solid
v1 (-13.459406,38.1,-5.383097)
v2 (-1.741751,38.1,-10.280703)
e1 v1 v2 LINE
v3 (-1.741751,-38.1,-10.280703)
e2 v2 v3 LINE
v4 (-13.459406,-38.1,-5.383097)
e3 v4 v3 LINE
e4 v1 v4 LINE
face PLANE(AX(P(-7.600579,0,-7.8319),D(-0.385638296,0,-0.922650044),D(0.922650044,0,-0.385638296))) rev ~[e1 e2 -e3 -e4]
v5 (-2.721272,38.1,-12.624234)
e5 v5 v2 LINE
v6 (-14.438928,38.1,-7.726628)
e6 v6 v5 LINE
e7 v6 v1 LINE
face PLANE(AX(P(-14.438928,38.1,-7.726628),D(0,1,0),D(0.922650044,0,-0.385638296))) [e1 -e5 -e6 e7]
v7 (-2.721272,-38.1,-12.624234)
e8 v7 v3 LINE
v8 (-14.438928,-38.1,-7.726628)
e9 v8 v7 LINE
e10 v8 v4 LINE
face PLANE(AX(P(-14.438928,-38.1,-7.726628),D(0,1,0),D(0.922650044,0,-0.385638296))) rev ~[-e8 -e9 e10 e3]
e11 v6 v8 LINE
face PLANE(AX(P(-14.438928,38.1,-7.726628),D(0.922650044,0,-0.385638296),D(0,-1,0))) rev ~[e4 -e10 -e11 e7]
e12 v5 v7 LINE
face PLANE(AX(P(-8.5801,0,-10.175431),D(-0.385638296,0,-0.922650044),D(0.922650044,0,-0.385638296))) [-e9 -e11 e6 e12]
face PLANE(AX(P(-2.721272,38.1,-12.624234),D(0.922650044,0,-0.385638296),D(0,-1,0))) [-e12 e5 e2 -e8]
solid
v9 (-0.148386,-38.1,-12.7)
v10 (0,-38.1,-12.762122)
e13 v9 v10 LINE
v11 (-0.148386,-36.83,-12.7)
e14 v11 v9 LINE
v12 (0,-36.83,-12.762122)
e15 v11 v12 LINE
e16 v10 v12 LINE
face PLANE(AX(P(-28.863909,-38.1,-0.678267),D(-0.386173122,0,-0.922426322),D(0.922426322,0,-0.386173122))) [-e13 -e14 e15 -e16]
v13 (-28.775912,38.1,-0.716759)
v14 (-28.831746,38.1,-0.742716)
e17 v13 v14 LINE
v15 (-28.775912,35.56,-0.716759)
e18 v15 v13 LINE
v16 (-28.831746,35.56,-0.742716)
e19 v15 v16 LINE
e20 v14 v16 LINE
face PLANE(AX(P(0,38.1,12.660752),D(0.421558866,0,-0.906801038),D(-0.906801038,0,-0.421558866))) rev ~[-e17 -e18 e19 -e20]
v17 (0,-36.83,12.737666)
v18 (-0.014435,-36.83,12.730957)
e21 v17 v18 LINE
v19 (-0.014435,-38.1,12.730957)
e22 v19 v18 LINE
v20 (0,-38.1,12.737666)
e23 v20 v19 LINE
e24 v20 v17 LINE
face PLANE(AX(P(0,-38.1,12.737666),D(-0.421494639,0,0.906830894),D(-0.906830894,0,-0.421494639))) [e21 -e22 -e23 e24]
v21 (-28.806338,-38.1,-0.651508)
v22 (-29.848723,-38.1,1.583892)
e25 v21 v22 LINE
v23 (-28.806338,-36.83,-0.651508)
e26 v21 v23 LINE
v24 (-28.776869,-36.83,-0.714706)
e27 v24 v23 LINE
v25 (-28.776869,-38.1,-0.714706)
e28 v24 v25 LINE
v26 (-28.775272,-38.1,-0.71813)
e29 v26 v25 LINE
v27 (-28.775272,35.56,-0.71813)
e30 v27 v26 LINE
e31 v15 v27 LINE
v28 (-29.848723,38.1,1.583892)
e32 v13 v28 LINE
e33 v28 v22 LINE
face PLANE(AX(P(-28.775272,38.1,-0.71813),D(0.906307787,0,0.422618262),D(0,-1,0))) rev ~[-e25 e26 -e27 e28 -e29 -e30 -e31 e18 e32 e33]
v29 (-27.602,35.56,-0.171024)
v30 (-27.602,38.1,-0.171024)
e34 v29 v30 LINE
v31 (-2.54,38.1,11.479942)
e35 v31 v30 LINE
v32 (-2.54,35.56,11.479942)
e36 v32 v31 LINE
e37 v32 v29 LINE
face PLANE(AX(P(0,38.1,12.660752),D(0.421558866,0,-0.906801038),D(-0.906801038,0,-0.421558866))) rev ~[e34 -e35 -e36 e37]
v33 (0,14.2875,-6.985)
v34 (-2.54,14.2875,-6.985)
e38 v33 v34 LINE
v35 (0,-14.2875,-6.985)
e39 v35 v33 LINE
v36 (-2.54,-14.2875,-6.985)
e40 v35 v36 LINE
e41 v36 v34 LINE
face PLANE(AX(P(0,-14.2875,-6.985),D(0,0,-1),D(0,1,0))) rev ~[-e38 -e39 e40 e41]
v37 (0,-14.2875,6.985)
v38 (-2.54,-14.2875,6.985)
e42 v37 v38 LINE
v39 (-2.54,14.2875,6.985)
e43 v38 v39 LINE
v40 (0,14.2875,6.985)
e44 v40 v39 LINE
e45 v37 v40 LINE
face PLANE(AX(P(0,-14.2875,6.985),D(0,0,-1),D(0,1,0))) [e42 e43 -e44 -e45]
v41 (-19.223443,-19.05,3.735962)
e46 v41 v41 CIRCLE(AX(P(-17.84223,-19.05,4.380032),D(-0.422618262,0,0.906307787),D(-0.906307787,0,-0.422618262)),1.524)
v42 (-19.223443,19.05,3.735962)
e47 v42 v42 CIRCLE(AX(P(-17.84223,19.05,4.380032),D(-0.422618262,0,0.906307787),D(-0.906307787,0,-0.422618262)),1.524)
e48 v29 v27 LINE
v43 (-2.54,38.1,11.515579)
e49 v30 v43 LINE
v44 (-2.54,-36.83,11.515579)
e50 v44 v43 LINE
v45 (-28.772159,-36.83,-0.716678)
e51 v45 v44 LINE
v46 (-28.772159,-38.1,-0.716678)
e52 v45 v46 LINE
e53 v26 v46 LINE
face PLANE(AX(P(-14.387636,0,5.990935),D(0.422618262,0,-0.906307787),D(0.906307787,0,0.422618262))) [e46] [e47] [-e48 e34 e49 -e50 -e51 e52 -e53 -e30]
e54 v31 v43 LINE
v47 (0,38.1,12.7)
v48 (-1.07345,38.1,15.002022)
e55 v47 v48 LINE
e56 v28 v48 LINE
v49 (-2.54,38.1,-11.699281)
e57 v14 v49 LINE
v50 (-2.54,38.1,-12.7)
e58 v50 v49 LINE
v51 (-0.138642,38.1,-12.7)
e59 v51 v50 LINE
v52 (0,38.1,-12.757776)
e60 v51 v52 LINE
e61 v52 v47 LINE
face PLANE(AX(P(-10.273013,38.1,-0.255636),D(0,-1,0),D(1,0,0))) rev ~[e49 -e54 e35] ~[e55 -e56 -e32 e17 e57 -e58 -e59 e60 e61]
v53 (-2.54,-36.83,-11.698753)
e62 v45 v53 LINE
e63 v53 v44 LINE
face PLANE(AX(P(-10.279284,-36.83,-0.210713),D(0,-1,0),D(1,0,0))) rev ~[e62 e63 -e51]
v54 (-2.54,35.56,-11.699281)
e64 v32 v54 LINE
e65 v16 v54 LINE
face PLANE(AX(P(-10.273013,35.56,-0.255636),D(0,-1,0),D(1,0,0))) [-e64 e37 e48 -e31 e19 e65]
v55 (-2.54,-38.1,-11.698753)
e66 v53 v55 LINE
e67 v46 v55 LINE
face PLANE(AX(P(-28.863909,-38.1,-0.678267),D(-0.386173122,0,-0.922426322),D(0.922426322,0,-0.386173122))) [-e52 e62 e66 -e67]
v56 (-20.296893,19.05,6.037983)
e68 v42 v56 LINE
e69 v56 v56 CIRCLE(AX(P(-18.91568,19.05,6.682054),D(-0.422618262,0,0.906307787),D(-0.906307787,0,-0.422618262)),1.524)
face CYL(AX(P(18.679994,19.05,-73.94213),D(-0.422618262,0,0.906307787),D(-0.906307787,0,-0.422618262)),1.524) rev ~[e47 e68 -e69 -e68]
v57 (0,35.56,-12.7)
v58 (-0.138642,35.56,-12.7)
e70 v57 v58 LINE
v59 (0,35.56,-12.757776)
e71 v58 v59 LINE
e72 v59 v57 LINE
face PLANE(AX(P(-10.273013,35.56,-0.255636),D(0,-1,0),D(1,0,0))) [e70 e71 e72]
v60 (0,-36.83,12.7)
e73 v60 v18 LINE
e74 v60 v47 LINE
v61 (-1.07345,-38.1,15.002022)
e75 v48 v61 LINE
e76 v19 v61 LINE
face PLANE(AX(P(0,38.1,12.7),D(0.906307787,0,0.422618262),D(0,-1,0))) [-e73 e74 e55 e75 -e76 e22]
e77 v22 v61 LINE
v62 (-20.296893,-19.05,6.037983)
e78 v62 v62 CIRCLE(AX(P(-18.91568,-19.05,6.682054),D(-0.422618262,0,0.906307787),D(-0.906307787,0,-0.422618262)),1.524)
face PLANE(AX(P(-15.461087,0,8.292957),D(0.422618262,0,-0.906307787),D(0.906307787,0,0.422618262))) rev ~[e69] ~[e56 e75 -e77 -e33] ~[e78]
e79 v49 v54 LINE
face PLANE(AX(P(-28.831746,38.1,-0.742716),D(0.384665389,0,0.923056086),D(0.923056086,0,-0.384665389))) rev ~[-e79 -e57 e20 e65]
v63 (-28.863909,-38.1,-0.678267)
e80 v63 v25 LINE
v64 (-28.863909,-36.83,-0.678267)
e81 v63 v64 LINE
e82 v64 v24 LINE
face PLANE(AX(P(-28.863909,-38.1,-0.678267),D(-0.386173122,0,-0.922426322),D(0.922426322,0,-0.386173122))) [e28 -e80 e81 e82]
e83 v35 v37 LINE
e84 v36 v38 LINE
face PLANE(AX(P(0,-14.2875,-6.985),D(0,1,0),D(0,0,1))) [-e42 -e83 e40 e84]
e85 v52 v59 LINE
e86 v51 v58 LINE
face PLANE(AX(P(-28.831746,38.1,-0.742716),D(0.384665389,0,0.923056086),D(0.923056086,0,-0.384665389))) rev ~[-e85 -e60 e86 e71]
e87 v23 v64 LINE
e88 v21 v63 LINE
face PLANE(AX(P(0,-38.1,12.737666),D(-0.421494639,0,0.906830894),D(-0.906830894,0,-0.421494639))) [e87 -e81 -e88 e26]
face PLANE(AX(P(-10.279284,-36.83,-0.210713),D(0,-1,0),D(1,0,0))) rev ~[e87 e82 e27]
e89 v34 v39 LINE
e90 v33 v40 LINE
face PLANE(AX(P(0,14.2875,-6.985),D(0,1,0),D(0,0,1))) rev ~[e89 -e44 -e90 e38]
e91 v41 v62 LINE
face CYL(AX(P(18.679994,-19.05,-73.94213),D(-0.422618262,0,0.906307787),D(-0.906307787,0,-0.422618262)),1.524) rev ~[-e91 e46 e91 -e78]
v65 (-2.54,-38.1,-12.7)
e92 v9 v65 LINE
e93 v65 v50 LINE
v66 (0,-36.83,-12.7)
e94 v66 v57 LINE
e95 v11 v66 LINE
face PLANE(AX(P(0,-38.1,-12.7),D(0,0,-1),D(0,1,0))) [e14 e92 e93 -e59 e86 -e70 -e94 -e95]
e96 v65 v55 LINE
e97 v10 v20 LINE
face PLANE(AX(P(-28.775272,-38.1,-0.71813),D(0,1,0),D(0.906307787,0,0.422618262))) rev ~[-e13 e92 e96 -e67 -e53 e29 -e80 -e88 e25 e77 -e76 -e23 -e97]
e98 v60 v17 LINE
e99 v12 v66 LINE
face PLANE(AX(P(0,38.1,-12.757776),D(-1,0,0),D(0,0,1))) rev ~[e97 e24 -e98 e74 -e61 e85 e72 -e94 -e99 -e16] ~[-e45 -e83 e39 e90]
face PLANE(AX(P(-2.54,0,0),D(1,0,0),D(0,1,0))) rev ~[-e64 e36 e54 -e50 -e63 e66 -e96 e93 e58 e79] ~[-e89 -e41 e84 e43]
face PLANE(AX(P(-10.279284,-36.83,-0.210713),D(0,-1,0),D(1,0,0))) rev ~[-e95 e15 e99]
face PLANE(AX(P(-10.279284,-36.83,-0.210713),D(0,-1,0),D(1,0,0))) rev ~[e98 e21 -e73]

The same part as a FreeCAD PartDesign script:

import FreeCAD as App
import Part
import Sketcher
from FreeCAD import Vector
Q = App.Units.Quantity


def add_polygon(sketch, points):
    """Adds a closed chain of lines whose ends are joined by coincident constraints."""
    first, n = sketch.GeometryCount, len(points)
    for a, b in zip(points, points[1:] + points[:1]):
        sketch.addGeometry(Part.LineSegment(App.Vector(*a, 0), App.Vector(*b, 0)), False)
    for i in range(n):
        sketch.addConstraint(Sketcher.Constraint("Coincident", first + i, 2, first + (i + 1) % n, 1))

doc = App.newDocument("Part")
params = doc.addObject("Spreadsheet::Sheet", "Params")
for row, (alias, value) in enumerate([
    ("pad1_length", "0.05 in"),
    ("pad2_length", "0.05 in"),
    ("sketch3_width", "3 in"),
    ("sketch3_height", "1 in"),
    ("sketch3_height2", "0.55 in"),
    ("sketch3_width2", "1.125 in"),
    ("pad3_length", "0.1 in"),
    ("sketch4_height", "3 in"),
    ("sketch4_width", "1.25 in"),
    ("pad4_length", "0.1 in"),
    ("pad5_length", "0.1 in"),
    ("sketch6_diameter", "0.12 in"),
    ("hole_diameter", "0.12 in"),
    ("sketch7_height", "3 in"),
    ("sketch7_width", "0.5 in"),
    ("pad6_length", "0.1 in"),
], start=1):
    params.set(f"A{row}", alias)
    params.set(f"B{row}", "=" + value)
    params.setAlias(f"B{row}", alias)

body = doc.addObject("PartDesign::Body", "Body")

sketch1 = body.newObject("Sketcher::SketchObject", "Sketch")
sketch1.AttachmentSupport = (doc.getObject("XZ_Plane"), [""])
sketch1.MapMode = "FlatFace"
sketch1.AttachmentOffset = App.Placement(Vector(0, 0, 1.5 * 25.4), App.Rotation())
add_polygon(sketch1, [(0, -13), (0, 13), (-29, -1)])
sketch1.addConstraint(Sketcher.Constraint("Vertical", 0))
sketch1.addConstraint(Sketcher.Constraint("PointOnObject", 0, 2, -2))
sketch1.addConstraint(Sketcher.Constraint("DistanceY", 0, 1, 0, 2, 25.499788))
sketch1.addConstraint(Sketcher.Constraint("Distance", 1, 31.829428))
sketch1.addConstraint(Sketcher.Constraint("Distance", 2, 31.291289))
sketch1.addConstraint(Sketcher.Constraint("DistanceY", 2, 2, -1, 1, 12.762122))
pad1 = body.newObject("PartDesign::Pad", "Pad")
pad1.Profile = sketch1
pad1.setExpression("Length", "Params.pad1_length")
pad1.Reversed = True

sketch2 = body.newObject("Sketcher::SketchObject", "Sketch001")
sketch2.AttachmentSupport = (doc.getObject("XZ_Plane"), [""])
sketch2.MapMode = "FlatFace"
sketch2.AttachmentOffset = App.Placement(Vector(0, 0, 1.5 * 25.4), App.Rotation())
add_polygon(sketch2, [(0, -13), (0, 13), (-29, -1)])
sketch2.addConstraint(Sketcher.Constraint("Vertical", 0))
sketch2.addConstraint(Sketcher.Constraint("PointOnObject", 0, 2, -2))
sketch2.addConstraint(Sketcher.Constraint("DistanceY", 0, 1, 0, 2, 25.499788))
sketch2.addConstraint(Sketcher.Constraint("Distance", 1, 31.829428))
sketch2.addConstraint(Sketcher.Constraint("Distance", 2, 31.291289))
sketch2.addConstraint(Sketcher.Constraint("DistanceY", 2, 2, -1, 1, 12.762122))
pad2 = body.newObject("PartDesign::Pad", "Pad001")
pad2.Profile = sketch2
pad2.setExpression("Length", "Params.pad2_length")
pad2.Reversed = True

sketch3 = body.newObject("Sketcher::SketchObject", "Sketch002")
sketch3.AttachmentSupport = (doc.getObject("YZ_Plane"), [""])
sketch3.MapMode = "FlatFace"
add_polygon(sketch3, [(-38, 13), (-38, -13), (38, -13), (38, 13)])
add_polygon(sketch3, [(14, -7), (-14, -7), (-14, 7), (14, 7)])
sketch3.addConstraint(Sketcher.Constraint("Vertical", 0))
sketch3.addConstraint(Sketcher.Constraint("Horizontal", 1))
sketch3.addConstraint(Sketcher.Constraint("Vertical", 2))
sketch3.addConstraint(Sketcher.Constraint("Horizontal", 3))
sketch3.addConstraint(Sketcher.Constraint("Horizontal", 4))
sketch3.addConstraint(Sketcher.Constraint("Vertical", 5))
sketch3.addConstraint(Sketcher.Constraint("Horizontal", 6))
sketch3.addConstraint(Sketcher.Constraint("Vertical", 7))
sketch3.addConstraint(Sketcher.Constraint("Symmetric", 0, 2, 2, 2, -1, 1))
sketch3.addConstraint(Sketcher.Constraint("Symmetric", 4, 2, 6, 2, -1, 1))
sketch3.addConstraint(Sketcher.Constraint("DistanceX", 1, 1, 1, 2, Q("3 in")))
sketch3.addConstraint(Sketcher.Constraint("DistanceY", 0, 2, 0, 1, Q("1 in")))
sketch3.addConstraint(Sketcher.Constraint("DistanceY", 5, 1, 5, 2, Q("0.55 in")))
sketch3.addConstraint(Sketcher.Constraint("DistanceX", 4, 2, 4, 1, Q("1.125 in")))
sketch3.setExpression("Constraints[18]", "Params.sketch3_width")
sketch3.setExpression("Constraints[19]", "Params.sketch3_height")
sketch3.setExpression("Constraints[20]", "Params.sketch3_height2")
sketch3.setExpression("Constraints[21]", "Params.sketch3_width2")
pad3 = body.newObject("PartDesign::Pad", "Pad002")
pad3.Profile = sketch3
pad3.setExpression("Length", "Params.pad3_length")
pad3.Reversed = True

sketch4 = body.newObject("Sketcher::SketchObject", "Sketch003")
sketch4.Placement = App.Placement(Vector(-4.864382, 0, 10.431701), App.Rotation(Vector(0.906307787, 0, 0.422618262), Vector(0, -1, 0), Vector(0.422618262, 0, -0.906307787), "ZXY"))
add_polygon(sketch4, [(-26, 38), (-26, -38), (5, -38), (5, 38)])
sketch4.addConstraint(Sketcher.Constraint("Vertical", 0))
sketch4.addConstraint(Sketcher.Constraint("Horizontal", 1))
sketch4.addConstraint(Sketcher.Constraint("Vertical", 2))
sketch4.addConstraint(Sketcher.Constraint("Horizontal", 3))
sketch4.addConstraint(Sketcher.Constraint("DistanceY", 0, 2, 0, 1, Q("3 in")))
sketch4.addConstraint(Sketcher.Constraint("DistanceX", 1, 1, 1, 2, Q("1.25 in")))
sketch4.addConstraint(Sketcher.Constraint("DistanceY", 0, 2, -1, 1, Q("1.5 in")))
sketch4.addConstraint(Sketcher.Constraint("DistanceX", 0, 2, -1, 1, 26.382748))
sketch4.setExpression("Constraints[8]", "Params.sketch4_height")
sketch4.setExpression("Constraints[9]", "Params.sketch4_width")
pad4 = body.newObject("PartDesign::Pad", "Pad003")
pad4.Profile = sketch4
pad4.setExpression("Length", "Params.pad4_length")
pad4.Reversed = True

sketch5 = body.newObject("Sketcher::SketchObject", "Sketch004")
sketch5.AttachmentSupport = (doc.getObject("XZ_Plane"), [""])
sketch5.MapMode = "FlatFace"
sketch5.AttachmentOffset = App.Placement(Vector(0, 0, -1.5 * 25.4), App.Rotation())
add_polygon(sketch5, [(0, -13), (0, 13), (-29, -1)])
sketch5.addConstraint(Sketcher.Constraint("Vertical", 0))
sketch5.addConstraint(Sketcher.Constraint("PointOnObject", 0, 2, -2))
sketch5.addConstraint(Sketcher.Constraint("DistanceY", 0, 1, 0, 2, 25.418528))
sketch5.addConstraint(Sketcher.Constraint("Distance", 1, 31.795008))
sketch5.addConstraint(Sketcher.Constraint("DistanceY", 2, 2, 1, 2, 12.015061))
sketch5.addConstraint(Sketcher.Constraint("DistanceY", -1, 1, 0, 2, 12.660752))
pad5 = body.newObject("PartDesign::Pad", "Pad004")
pad5.Profile = sketch5
pad5.setExpression("Length", "Params.pad5_length")

sketch6 = body.newObject("Sketcher::SketchObject", "Sketch005")
sketch6.Placement = App.Placement(Vector(-4.864382, 0, 10.431701), App.Rotation(Vector(0.906307787, 0, 0.422618262), Vector(0, -1, 0), Vector(0.422618262, 0, -0.906307787), "ZXY"))
sketch6.addGeometry(Part.Circle(Vector(-14.3, 19.1, 0), Vector(0, 0, 1), 1.5), False)
sketch6.addGeometry(Part.Circle(Vector(-14.3, -19.1, 0), Vector(0, 0, 1), 1.5), False)
sketch6.addConstraint(Sketcher.Constraint("Equal", 0, 1))
sketch6.addConstraint(Sketcher.Constraint("Symmetric", 0, 3, 1, 3, -1))
sketch6.addConstraint(Sketcher.Constraint("Diameter", 0, Q("0.12 in")))
sketch6.addConstraint(Sketcher.Constraint("DistanceY", 1, 3, 0, 3, Q("1.5 in")))
sketch6.addConstraint(Sketcher.Constraint("DistanceX", 0, 3, -1, 1, 14.31947))
sketch6.setExpression("Constraints[2]", "Params.sketch6_diameter")
doc.recompute()
hole = body.newObject("PartDesign::Hole", "Hole")
hole.Profile = sketch6
hole.ThreadType = "None"
hole.setExpression("Diameter", "Params.hole_diameter")
hole.DepthType = "ThroughAll"
body2 = doc.addObject("PartDesign::Body", "Body001")

sketch7 = body2.newObject("Sketcher::SketchObject", "Sketch006")
sketch7.Placement = App.Placement(Vector(-4.896518, 0, -11.715051), App.Rotation(Vector(0.922650044, 0, -0.385638296), Vector(0, -0.999999999, 0), Vector(-0.385638296, 0, -0.922650044), "ZXY"))
add_polygon(sketch7, [(-10, 38), (-10, -38), (2, -38), (2, 38)])
sketch7.addConstraint(Sketcher.Constraint("Vertical", 0))
sketch7.addConstraint(Sketcher.Constraint("Horizontal", 1))
sketch7.addConstraint(Sketcher.Constraint("Vertical", 2))
sketch7.addConstraint(Sketcher.Constraint("Horizontal", 3))
sketch7.addConstraint(Sketcher.Constraint("DistanceY", 0, 2, 0, 1, Q("3 in")))
sketch7.addConstraint(Sketcher.Constraint("DistanceX", 1, 1, 1, 2, Q("0.5 in")))
sketch7.addConstraint(Sketcher.Constraint("DistanceY", 0, 2, -1, 1, Q("1.5 in")))
sketch7.addConstraint(Sketcher.Constraint("DistanceX", 0, 2, -1, 1, 10.342394))
sketch7.setExpression("Constraints[8]", "Params.sketch7_height")
sketch7.setExpression("Constraints[9]", "Params.sketch7_width")
pad6 = body2.newObject("PartDesign::Pad", "Pad005")
pad6.Profile = sketch7
pad6.setExpression("Length", "Params.pad6_length")
pad6.Reversed = True

doc.recompute()
